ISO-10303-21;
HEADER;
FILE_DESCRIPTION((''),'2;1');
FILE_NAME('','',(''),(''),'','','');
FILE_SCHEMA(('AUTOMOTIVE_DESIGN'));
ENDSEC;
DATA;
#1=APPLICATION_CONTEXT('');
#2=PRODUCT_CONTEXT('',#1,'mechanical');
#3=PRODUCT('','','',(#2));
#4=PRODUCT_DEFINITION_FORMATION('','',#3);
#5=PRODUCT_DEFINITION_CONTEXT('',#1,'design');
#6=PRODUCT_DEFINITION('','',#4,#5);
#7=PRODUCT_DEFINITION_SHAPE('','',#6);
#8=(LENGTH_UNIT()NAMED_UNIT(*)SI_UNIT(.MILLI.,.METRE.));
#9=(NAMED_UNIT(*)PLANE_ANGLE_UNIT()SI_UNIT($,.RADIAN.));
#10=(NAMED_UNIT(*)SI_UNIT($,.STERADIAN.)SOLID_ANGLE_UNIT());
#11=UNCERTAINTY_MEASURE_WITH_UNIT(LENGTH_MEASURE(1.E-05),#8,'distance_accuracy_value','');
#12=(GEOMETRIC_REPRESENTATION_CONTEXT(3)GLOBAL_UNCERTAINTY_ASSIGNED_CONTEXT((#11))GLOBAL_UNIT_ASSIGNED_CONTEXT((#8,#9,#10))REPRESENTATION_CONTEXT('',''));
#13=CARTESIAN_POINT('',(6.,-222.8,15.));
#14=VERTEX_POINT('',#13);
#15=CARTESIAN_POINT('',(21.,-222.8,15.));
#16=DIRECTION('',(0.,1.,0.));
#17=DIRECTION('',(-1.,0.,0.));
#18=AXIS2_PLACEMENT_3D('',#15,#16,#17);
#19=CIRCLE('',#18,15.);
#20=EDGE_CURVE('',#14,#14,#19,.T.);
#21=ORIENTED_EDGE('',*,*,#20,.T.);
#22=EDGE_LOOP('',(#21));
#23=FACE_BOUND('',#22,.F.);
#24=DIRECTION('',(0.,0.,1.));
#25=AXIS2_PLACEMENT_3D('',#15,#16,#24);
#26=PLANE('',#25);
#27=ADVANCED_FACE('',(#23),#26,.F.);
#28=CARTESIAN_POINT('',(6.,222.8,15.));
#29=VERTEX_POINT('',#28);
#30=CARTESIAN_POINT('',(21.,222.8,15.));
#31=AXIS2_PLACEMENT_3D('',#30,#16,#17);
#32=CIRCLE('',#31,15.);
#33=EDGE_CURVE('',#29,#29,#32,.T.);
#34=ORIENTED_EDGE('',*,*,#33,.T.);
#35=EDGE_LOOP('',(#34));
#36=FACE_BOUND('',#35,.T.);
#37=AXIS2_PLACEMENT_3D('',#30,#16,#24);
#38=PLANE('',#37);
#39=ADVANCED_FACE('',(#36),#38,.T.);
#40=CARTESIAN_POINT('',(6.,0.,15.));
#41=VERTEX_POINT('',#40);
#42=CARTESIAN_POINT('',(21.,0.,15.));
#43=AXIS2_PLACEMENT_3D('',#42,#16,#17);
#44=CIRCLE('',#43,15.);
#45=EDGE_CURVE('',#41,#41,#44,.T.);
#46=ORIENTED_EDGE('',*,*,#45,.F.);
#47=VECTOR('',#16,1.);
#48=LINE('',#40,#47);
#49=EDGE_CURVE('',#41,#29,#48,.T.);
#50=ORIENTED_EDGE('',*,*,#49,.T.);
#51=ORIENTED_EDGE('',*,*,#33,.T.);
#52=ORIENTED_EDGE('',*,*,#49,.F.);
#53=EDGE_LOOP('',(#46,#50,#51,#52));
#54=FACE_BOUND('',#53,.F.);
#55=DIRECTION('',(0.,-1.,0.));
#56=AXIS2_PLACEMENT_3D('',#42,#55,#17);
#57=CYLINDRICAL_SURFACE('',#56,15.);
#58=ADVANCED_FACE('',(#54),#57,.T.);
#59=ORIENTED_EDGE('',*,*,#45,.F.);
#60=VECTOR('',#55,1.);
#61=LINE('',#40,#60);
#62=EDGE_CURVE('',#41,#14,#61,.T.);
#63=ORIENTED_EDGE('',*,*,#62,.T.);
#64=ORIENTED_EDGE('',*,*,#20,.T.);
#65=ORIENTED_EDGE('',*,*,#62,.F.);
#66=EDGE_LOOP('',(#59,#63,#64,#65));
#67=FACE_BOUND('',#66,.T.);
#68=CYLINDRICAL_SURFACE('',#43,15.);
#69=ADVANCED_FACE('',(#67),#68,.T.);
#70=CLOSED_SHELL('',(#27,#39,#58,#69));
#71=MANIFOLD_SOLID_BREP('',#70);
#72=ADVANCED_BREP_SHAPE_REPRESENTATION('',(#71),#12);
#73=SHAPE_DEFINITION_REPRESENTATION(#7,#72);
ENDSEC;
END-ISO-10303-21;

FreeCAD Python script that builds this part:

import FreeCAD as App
import Part
import Sketcher

V = App.Vector
Q = App.Units.Quantity

doc = App.newDocument("Part")
params = doc.addObject("Spreadsheet::Sheet", "Params")
for row, (alias, value) in enumerate([
    ("sketch1_diameter", "30 mm"),
    ("pad1_length", "445.6 mm"),
], start=1):
    params.set(f"A{row}", alias)
    params.set(f"B{row}", "=" + value)
    params.setAlias(f"B{row}", alias)

body = doc.addObject("PartDesign::Body", "Body")

sketch1 = body.newObject("Sketcher::SketchObject", "Sketch")
sketch1.AttachmentSupport = (doc.getObject("XZ_Plane"), [""])
sketch1.MapMode = "FlatFace"
sketch1.addGeometry(Part.Circle(V(21, 15, 0), V(0, 0, 1), 15), False)
sketch1.addConstraint(Sketcher.Constraint("Diameter", 0, Q("30 mm")))
sketch1.addConstraint(Sketcher.Constraint("DistanceX", -1, 1, 0, 3, Q("21 mm")))
sketch1.addConstraint(Sketcher.Constraint("DistanceY", -1, 1, 0, 3, Q("15 mm")))
sketch1.setExpression("Constraints[0]", "Params.sketch1_diameter")
pad1 = body.newObject("PartDesign::Pad", "Pad")
pad1.Profile = sketch1
pad1.setExpression("Length", "Params.pad1_length")
pad1.Midplane = True

doc.recompute()
